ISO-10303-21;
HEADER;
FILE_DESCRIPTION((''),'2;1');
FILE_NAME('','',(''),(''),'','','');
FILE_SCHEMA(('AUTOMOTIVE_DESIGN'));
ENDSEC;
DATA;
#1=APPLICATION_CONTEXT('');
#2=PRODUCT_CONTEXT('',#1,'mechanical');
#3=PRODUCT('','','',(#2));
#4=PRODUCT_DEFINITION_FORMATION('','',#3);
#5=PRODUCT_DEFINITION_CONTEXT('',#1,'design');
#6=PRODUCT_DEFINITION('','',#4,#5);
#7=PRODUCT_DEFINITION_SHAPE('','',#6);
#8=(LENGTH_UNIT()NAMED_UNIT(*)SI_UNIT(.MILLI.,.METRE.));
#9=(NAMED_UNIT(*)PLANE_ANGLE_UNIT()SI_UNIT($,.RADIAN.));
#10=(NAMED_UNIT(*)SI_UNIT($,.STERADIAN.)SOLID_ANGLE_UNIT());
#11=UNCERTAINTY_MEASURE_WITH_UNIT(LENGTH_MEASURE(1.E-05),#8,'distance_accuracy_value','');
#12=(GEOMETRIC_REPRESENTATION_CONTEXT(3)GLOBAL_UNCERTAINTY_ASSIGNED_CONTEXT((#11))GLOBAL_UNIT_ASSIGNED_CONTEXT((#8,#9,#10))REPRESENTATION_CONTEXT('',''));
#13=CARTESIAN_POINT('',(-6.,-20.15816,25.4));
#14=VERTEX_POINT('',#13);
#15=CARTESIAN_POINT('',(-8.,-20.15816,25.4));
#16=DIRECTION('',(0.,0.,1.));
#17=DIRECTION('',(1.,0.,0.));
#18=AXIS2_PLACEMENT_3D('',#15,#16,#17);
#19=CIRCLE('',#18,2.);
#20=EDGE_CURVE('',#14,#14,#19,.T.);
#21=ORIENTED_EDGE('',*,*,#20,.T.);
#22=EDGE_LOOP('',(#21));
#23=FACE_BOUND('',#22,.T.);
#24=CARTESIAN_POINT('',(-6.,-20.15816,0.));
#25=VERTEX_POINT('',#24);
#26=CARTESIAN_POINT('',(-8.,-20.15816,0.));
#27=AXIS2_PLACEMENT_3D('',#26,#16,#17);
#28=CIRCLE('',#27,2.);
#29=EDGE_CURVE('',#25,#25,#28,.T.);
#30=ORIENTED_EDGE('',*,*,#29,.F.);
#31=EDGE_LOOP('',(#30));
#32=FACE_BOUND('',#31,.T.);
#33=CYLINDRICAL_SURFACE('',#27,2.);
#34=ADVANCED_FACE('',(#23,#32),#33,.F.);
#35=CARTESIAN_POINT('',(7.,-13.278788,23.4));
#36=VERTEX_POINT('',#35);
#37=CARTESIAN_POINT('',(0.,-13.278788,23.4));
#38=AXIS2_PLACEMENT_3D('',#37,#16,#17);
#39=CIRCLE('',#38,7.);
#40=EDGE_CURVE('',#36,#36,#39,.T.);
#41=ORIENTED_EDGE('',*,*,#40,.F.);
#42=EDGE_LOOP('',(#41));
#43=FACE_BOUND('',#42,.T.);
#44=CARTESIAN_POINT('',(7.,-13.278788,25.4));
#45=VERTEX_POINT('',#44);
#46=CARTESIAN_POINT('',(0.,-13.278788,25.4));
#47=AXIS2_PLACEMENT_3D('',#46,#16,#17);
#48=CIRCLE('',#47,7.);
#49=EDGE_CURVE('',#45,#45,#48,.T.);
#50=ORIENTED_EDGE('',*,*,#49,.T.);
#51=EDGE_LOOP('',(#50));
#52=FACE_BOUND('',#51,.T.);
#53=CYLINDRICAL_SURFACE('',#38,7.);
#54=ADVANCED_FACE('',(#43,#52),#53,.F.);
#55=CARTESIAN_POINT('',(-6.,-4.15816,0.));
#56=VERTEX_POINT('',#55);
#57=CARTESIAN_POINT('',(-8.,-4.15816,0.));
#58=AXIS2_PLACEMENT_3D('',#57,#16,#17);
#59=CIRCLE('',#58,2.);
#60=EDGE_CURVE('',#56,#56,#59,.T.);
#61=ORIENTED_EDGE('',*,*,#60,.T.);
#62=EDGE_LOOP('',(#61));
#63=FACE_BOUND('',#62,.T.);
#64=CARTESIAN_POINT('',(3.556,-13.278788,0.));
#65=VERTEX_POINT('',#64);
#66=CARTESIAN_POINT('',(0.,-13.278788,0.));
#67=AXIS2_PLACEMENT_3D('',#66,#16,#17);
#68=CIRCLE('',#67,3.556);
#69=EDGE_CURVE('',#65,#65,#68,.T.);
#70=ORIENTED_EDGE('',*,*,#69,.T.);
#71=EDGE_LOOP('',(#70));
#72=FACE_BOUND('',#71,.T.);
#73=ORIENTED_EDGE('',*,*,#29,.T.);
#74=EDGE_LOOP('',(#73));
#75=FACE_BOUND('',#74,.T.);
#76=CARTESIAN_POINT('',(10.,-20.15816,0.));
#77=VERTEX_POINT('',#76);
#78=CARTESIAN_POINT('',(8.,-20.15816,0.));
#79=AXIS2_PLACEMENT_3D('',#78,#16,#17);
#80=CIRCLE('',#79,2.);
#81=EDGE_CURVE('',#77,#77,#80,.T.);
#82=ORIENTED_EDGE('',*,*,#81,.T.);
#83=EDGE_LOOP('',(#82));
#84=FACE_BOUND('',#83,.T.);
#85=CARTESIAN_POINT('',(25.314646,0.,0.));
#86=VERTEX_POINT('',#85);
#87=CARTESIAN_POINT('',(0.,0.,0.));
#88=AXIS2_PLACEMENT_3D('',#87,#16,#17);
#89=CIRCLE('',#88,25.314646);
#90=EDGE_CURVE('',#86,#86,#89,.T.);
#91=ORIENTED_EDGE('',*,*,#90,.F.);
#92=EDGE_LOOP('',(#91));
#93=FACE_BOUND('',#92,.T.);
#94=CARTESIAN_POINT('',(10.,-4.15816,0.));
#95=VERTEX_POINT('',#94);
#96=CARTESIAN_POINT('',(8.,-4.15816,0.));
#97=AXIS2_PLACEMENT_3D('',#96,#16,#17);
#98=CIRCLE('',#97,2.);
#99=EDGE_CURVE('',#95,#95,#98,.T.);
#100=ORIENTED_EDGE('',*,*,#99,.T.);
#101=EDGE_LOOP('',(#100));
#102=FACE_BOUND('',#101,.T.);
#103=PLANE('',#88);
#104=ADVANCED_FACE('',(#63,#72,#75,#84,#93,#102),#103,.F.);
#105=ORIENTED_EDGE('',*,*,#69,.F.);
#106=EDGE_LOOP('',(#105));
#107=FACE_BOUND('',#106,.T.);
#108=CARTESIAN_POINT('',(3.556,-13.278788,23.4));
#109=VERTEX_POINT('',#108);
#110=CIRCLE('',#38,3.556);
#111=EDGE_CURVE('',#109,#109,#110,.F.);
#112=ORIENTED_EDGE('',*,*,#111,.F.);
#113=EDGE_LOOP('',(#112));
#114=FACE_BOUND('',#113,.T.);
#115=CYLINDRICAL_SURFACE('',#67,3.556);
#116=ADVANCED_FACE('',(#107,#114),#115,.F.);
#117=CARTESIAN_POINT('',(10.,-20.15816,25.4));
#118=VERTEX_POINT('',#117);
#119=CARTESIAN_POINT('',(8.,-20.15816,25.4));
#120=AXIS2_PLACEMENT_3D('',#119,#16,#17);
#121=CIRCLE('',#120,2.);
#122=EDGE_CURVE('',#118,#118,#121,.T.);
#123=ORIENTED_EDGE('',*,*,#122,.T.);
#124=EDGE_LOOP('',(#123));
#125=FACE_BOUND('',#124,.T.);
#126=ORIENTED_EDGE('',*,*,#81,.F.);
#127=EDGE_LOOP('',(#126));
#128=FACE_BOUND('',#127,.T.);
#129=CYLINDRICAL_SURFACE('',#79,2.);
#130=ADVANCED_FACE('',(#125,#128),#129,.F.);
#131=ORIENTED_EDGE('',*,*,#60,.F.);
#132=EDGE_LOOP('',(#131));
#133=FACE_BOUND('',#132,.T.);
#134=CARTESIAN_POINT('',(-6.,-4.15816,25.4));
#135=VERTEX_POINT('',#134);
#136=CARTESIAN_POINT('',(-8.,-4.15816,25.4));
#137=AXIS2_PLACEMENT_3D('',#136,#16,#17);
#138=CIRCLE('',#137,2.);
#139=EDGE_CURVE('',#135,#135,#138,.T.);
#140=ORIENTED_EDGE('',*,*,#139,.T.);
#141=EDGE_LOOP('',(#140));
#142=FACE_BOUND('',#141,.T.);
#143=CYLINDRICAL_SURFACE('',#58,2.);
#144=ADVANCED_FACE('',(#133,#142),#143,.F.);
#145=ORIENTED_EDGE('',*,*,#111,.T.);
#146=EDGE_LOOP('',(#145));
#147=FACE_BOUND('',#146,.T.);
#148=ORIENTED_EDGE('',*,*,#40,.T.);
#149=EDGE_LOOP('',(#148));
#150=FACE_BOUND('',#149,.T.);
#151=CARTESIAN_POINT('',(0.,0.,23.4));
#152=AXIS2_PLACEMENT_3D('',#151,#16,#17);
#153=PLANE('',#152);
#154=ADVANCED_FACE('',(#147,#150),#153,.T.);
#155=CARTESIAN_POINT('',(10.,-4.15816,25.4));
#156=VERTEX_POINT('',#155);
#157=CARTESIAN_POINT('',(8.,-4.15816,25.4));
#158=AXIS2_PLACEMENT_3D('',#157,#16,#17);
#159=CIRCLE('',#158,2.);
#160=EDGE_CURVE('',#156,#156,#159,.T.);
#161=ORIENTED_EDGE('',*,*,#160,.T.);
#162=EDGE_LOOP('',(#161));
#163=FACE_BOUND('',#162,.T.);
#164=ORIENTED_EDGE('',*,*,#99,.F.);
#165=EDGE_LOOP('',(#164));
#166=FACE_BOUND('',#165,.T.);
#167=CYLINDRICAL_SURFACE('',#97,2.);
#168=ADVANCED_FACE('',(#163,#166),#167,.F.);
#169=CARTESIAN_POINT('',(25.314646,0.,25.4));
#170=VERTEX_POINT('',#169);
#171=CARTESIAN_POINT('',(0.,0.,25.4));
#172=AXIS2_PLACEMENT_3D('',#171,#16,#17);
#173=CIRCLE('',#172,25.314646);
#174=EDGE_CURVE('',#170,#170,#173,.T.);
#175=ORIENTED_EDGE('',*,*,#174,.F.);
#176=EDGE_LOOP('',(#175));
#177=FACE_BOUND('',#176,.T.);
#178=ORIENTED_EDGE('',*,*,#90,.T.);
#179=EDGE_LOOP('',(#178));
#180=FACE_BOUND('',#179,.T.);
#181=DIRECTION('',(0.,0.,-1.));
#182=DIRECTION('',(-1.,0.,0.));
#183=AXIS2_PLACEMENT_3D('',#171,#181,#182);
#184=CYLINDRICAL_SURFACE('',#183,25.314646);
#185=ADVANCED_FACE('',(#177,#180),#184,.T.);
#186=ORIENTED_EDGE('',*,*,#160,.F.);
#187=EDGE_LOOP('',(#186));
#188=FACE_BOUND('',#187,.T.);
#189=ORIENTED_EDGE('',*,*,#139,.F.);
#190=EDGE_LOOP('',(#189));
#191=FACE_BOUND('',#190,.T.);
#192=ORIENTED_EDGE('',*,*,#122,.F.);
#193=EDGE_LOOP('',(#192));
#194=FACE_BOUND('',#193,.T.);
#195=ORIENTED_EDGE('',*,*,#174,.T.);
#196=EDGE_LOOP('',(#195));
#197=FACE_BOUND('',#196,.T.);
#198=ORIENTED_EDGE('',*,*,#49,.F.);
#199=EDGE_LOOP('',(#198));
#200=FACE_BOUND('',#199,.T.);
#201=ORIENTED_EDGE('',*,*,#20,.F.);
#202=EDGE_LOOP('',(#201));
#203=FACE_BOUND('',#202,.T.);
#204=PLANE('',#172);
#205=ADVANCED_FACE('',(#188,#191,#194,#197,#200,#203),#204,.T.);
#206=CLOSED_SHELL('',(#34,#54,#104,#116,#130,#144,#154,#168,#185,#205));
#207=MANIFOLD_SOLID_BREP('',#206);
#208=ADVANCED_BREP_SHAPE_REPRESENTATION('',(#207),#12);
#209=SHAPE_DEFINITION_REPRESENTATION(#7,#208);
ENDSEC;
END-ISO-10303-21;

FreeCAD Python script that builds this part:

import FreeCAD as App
import Part
import Sketcher
Q = App.Units.Quantity

doc = App.newDocument("Part")
params = doc.addObject("Spreadsheet::Sheet", "Params")
for row, (alias, value) in enumerate([
    ("pad1_length", "25.4 mm"),
    ("pocket1_length", "25.4 mm"),
    ("sketch3_diameter", "14 mm"),
    ("pocket2_length", "2 mm"),
    ("sketch4_diameter", "4 mm"),
], start=1):
    params.set(f"A{row}", alias)
    params.set(f"B{row}", "=" + value)
    params.setAlias(f"B{row}", alias)

body = doc.addObject("PartDesign::Body", "Body")

# Sketch on XY plane
sketch1 = body.newObject("Sketcher::SketchObject", "Sketch")
sketch1.AttachmentSupport = (doc.getObject("XY_Plane"), [""])
sketch1.MapMode = "FlatFace"
sketch1.addGeometry(Part.Circle(App.Vector(0, 0, 0), App.Vector(0, 0, 1), 25), False)
sketch1.addConstraint([
    Sketcher.Constraint("Coincident", 0, 3, -1, 1),
    Sketcher.Constraint("Diameter", 0, Q("50.629292 mm")),
])
pad1 = body.newObject("PartDesign::Pad", "Pad")
pad1.Profile = sketch1
pad1.setExpression("Length", "Params.pad1_length")

# Sketch on XY plane
sketch2 = body.newObject("Sketcher::SketchObject", "Sketch001")
sketch2.AttachmentSupport = (doc.getObject("XY_Plane"), [""])
sketch2.MapMode = "FlatFace"
sketch2.AttachmentOffset = App.Placement(App.Vector(0, 0, 25.4), App.Rotation())
sketch2.addGeometry(Part.Circle(App.Vector(0, -13.3, 0), App.Vector(0, 0, 1), 3.6), False)
sketch2.addConstraint([
    Sketcher.Constraint("PointOnObject", 0, 3, -2),
    Sketcher.Constraint("Diameter", 0, Q("7.112 mm")),
    Sketcher.Constraint("DistanceY", 0, 3, -1, 1, Q("13.278788 mm")),
])
pocket1 = body.newObject("PartDesign::Pocket", "Pocket")
pocket1.Profile = sketch2
pocket1.setExpression("Length", "Params.pocket1_length")

# Sketch on XY plane
sketch3 = body.newObject("Sketcher::SketchObject", "Sketch002")
sketch3.AttachmentSupport = (doc.getObject("XY_Plane"), [""])
sketch3.MapMode = "FlatFace"
sketch3.AttachmentOffset = App.Placement(App.Vector(0, 0, 25.4), App.Rotation())
sketch3.addGeometry([
    Part.Circle(App.Vector(0, -13.3, 0), App.Vector(0, 0, 1), 7),
    Part.Circle(App.Vector(0, -13.3, 0), App.Vector(0, 0, 1), 3.6),
], False)
sketch3.addConstraint([
    Sketcher.Constraint("Coincident", 1, 3, 0, 3),
    Sketcher.Constraint("PointOnObject", 0, 3, -2),
    Sketcher.Constraint("Diameter", 0, Q("14 mm")),
    Sketcher.Constraint("Diameter", 1, Q("7.112 mm")),
    Sketcher.Constraint("DistanceY", 0, 3, -1, 1, Q("13.278788 mm")),
])
sketch3.setExpression("Constraints[2]", "Params.sketch3_diameter")
pocket2 = body.newObject("PartDesign::Pocket", "Pocket001")
pocket2.Profile = sketch3
pocket2.setExpression("Length", "Params.pocket2_length")

# Sketch on XY plane
sketch4 = body.newObject("Sketcher::SketchObject", "Sketch003")
sketch4.AttachmentSupport = (doc.getObject("XY_Plane"), [""])
sketch4.MapMode = "FlatFace"
sketch4.AttachmentOffset = App.Placement(App.Vector(0, 0, 25.4), App.Rotation())
sketch4.addGeometry([
    Part.Circle(App.Vector(-8, -4.2, 0), App.Vector(0, 0, 1), 2),
    Part.Circle(App.Vector(8, -4.2, 0), App.Vector(0, 0, 1), 2),
    Part.Circle(App.Vector(8, -20.2, 0), App.Vector(0, 0, 1), 2),
    Part.Circle(App.Vector(-8, -20.2, 0), App.Vector(0, 0, 1), 2),
], False)
sketch4.addConstraint([
    Sketcher.Constraint("Equal", 0, 1),
    Sketcher.Constraint("Equal", 1, 2),
    Sketcher.Constraint("Equal", 2, 3),
    Sketcher.Constraint("Symmetric", 0, 3, 1, 3, -2),
    Sketcher.Constraint("Symmetric", 2, 3, 3, 3, -2),
    Sketcher.Constraint("Vertical", 1, 3, 2, 3),
    Sketcher.Constraint("Diameter", 0, Q("4 mm")),
    Sketcher.Constraint("DistanceX", 0, 3, -1, 1, Q("8 mm")),
    Sketcher.Constraint("DistanceY", 2, 3, 1, 3, Q("16 mm")),
    Sketcher.Constraint("DistanceY", 0, 3, -1, 1, Q("4.15816 mm")),
])
sketch4.setExpression("Constraints[6]", "Params.sketch4_diameter")
pocket3 = body.newObject("PartDesign::Pocket", "Pocket002")
pocket3.Profile = sketch4
pocket3.Type = "ThroughAll"

doc.recompute()
